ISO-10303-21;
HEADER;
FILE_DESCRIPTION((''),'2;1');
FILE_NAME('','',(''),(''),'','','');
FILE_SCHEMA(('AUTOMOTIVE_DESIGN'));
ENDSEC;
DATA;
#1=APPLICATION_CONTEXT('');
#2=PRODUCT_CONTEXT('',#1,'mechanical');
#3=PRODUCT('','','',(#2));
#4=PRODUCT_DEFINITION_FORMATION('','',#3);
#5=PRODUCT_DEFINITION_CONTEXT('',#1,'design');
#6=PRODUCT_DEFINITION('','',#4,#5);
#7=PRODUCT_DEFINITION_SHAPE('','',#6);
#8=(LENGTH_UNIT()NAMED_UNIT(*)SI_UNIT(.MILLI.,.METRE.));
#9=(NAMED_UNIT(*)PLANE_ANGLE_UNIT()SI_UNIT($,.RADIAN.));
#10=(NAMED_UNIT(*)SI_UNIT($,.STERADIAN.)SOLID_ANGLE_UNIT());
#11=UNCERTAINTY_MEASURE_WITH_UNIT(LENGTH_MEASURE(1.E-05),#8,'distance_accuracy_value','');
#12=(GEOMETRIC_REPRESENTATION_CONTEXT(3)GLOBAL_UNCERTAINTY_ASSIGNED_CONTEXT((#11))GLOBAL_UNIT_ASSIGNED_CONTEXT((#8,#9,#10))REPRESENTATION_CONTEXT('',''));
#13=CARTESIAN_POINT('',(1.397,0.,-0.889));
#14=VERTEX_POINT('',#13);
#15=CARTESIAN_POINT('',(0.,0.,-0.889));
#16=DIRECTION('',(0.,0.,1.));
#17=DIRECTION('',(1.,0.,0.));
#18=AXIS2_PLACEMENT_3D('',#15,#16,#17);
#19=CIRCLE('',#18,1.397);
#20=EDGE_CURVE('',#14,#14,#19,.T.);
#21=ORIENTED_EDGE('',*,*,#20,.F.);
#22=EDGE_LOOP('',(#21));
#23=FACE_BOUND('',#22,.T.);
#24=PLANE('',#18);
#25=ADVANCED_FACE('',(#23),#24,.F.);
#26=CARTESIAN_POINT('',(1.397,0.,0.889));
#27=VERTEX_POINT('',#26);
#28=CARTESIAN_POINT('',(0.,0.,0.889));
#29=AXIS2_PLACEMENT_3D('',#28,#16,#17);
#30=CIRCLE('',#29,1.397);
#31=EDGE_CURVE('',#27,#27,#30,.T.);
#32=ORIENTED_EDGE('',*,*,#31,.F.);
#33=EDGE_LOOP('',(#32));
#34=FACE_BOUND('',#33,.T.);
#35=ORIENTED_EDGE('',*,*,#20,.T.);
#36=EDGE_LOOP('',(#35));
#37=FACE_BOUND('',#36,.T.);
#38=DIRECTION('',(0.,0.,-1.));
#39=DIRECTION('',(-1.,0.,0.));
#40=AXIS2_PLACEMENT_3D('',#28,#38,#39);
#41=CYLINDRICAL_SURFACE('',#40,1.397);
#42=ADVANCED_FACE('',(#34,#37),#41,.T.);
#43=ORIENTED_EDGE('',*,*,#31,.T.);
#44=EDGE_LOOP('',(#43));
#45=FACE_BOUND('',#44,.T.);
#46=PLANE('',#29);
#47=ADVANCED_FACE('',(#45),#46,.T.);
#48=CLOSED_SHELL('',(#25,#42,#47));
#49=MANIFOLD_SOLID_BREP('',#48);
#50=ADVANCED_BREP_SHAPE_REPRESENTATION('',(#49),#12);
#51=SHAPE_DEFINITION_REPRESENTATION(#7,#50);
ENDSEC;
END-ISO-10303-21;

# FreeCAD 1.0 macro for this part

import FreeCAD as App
import Part
import Sketcher

V = App.Vector
Q = App.Units.Quantity

doc = App.newDocument("Part")
body = doc.addObject("PartDesign::Body", "Body")

# Sketch on XY plane
sketch1 = body.newObject("Sketcher::SketchObject", "Sketch")
sketch1.AttachmentSupport = (doc.getObject("XY_Plane"), [""])
sketch1.MapMode = "FlatFace"
sketch1.addGeometry(Part.Circle(V(0, 0, 0), V(0, 0, 1), 1.397), False)
sketch1.addConstraint(Sketcher.Constraint("Coincident", 0, 3, -1, 1))
sketch1.addConstraint(Sketcher.Constraint("Diameter", 0, Q("0.11 in")))
pad1 = body.newObject("PartDesign::Pad", "Pad")
pad1.Profile = sketch1
pad1.Length = Q("0.07 in")
pad1.Midplane = True

doc.recompute()
